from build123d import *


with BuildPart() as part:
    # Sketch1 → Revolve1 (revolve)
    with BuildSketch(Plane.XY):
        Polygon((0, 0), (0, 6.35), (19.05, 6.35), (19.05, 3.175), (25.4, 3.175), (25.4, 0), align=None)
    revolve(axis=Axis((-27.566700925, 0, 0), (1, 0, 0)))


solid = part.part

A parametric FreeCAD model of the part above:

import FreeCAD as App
import Part
import Sketcher

V = App.Vector
Q = App.Units.Quantity

doc = App.newDocument("Part")
body = doc.addObject("PartDesign::Body", "Body")

sketch1 = doc.addObject("Sketcher::SketchObject", "Sketch")
body.addObject(sketch1)
sketch1.AttachmentSupport = (doc.XY_Plane, [""])
sketch1.MapMode = "FlatFace"
sketch1.addGeometry(Part.LineSegment(V(0, 6.3, 0), V(0, 0, 0)), False)
sketch1.addGeometry(Part.LineSegment(V(0, 0, 0), V(25.4, 0, 0)), False)
sketch1.addGeometry(Part.LineSegment(V(25.4, 0, 0), V(25.4, 3.2, 0)), False)
sketch1.addGeometry(Part.LineSegment(V(25.4, 3.2, 0), V(19.1, 3.2, 0)), False)
sketch1.addGeometry(Part.LineSegment(V(19.1, 3.2, 0), V(19.1, 6.3, 0)), False)
sketch1.addGeometry(Part.LineSegment(V(19.1, 6.3, 0), V(0, 6.3, 0)), False)
sketch1.addConstraint(Sketcher.Constraint("Coincident", 0, 2, 1, 1))
sketch1.addConstraint(Sketcher.Constraint("Coincident", 1, 2, 2, 1))
sketch1.addConstraint(Sketcher.Constraint("Coincident", 2, 2, 3, 1))
sketch1.addConstraint(Sketcher.Constraint("Coincident", 3, 2, 4, 1))
sketch1.addConstraint(Sketcher.Constraint("Coincident", 4, 2, 5, 1))
sketch1.addConstraint(Sketcher.Constraint("Coincident", 5, 2, 0, 1))
sketch1.addConstraint(Sketcher.Constraint("Vertical", 0))
sketch1.addConstraint(Sketcher.Constraint("Horizontal", 1))
sketch1.addConstraint(Sketcher.Constraint("Vertical", 2))
sketch1.addConstraint(Sketcher.Constraint("Horizontal", 3))
sketch1.addConstraint(Sketcher.Constraint("Vertical", 4))
sketch1.addConstraint(Sketcher.Constraint("Horizontal", 5))
sketch1.addConstraint(Sketcher.Constraint("Coincident", 0, 2, -1, 1))
sketch1.addConstraint(Sketcher.Constraint("Equal", 3, 0))
sketch1.addConstraint(Sketcher.Constraint("Equal", 2, 4))
sketch1.addConstraint(Sketcher.Constraint("DistanceX", 1, 1, 1, 2, Q("1 in")))
sketch1.addConstraint(Sketcher.Constraint("DistanceX", 3, 2, 3, 1, Q("0.25 in")))
revolution = doc.addObject("PartDesign::Revolution", "Revolution")
body.addObject(revolution)
revolution.Profile = sketch1
revolution.ReferenceAxis = (sketch1, ["H_Axis"])
revolution.Angle = 360

doc.recompute()
